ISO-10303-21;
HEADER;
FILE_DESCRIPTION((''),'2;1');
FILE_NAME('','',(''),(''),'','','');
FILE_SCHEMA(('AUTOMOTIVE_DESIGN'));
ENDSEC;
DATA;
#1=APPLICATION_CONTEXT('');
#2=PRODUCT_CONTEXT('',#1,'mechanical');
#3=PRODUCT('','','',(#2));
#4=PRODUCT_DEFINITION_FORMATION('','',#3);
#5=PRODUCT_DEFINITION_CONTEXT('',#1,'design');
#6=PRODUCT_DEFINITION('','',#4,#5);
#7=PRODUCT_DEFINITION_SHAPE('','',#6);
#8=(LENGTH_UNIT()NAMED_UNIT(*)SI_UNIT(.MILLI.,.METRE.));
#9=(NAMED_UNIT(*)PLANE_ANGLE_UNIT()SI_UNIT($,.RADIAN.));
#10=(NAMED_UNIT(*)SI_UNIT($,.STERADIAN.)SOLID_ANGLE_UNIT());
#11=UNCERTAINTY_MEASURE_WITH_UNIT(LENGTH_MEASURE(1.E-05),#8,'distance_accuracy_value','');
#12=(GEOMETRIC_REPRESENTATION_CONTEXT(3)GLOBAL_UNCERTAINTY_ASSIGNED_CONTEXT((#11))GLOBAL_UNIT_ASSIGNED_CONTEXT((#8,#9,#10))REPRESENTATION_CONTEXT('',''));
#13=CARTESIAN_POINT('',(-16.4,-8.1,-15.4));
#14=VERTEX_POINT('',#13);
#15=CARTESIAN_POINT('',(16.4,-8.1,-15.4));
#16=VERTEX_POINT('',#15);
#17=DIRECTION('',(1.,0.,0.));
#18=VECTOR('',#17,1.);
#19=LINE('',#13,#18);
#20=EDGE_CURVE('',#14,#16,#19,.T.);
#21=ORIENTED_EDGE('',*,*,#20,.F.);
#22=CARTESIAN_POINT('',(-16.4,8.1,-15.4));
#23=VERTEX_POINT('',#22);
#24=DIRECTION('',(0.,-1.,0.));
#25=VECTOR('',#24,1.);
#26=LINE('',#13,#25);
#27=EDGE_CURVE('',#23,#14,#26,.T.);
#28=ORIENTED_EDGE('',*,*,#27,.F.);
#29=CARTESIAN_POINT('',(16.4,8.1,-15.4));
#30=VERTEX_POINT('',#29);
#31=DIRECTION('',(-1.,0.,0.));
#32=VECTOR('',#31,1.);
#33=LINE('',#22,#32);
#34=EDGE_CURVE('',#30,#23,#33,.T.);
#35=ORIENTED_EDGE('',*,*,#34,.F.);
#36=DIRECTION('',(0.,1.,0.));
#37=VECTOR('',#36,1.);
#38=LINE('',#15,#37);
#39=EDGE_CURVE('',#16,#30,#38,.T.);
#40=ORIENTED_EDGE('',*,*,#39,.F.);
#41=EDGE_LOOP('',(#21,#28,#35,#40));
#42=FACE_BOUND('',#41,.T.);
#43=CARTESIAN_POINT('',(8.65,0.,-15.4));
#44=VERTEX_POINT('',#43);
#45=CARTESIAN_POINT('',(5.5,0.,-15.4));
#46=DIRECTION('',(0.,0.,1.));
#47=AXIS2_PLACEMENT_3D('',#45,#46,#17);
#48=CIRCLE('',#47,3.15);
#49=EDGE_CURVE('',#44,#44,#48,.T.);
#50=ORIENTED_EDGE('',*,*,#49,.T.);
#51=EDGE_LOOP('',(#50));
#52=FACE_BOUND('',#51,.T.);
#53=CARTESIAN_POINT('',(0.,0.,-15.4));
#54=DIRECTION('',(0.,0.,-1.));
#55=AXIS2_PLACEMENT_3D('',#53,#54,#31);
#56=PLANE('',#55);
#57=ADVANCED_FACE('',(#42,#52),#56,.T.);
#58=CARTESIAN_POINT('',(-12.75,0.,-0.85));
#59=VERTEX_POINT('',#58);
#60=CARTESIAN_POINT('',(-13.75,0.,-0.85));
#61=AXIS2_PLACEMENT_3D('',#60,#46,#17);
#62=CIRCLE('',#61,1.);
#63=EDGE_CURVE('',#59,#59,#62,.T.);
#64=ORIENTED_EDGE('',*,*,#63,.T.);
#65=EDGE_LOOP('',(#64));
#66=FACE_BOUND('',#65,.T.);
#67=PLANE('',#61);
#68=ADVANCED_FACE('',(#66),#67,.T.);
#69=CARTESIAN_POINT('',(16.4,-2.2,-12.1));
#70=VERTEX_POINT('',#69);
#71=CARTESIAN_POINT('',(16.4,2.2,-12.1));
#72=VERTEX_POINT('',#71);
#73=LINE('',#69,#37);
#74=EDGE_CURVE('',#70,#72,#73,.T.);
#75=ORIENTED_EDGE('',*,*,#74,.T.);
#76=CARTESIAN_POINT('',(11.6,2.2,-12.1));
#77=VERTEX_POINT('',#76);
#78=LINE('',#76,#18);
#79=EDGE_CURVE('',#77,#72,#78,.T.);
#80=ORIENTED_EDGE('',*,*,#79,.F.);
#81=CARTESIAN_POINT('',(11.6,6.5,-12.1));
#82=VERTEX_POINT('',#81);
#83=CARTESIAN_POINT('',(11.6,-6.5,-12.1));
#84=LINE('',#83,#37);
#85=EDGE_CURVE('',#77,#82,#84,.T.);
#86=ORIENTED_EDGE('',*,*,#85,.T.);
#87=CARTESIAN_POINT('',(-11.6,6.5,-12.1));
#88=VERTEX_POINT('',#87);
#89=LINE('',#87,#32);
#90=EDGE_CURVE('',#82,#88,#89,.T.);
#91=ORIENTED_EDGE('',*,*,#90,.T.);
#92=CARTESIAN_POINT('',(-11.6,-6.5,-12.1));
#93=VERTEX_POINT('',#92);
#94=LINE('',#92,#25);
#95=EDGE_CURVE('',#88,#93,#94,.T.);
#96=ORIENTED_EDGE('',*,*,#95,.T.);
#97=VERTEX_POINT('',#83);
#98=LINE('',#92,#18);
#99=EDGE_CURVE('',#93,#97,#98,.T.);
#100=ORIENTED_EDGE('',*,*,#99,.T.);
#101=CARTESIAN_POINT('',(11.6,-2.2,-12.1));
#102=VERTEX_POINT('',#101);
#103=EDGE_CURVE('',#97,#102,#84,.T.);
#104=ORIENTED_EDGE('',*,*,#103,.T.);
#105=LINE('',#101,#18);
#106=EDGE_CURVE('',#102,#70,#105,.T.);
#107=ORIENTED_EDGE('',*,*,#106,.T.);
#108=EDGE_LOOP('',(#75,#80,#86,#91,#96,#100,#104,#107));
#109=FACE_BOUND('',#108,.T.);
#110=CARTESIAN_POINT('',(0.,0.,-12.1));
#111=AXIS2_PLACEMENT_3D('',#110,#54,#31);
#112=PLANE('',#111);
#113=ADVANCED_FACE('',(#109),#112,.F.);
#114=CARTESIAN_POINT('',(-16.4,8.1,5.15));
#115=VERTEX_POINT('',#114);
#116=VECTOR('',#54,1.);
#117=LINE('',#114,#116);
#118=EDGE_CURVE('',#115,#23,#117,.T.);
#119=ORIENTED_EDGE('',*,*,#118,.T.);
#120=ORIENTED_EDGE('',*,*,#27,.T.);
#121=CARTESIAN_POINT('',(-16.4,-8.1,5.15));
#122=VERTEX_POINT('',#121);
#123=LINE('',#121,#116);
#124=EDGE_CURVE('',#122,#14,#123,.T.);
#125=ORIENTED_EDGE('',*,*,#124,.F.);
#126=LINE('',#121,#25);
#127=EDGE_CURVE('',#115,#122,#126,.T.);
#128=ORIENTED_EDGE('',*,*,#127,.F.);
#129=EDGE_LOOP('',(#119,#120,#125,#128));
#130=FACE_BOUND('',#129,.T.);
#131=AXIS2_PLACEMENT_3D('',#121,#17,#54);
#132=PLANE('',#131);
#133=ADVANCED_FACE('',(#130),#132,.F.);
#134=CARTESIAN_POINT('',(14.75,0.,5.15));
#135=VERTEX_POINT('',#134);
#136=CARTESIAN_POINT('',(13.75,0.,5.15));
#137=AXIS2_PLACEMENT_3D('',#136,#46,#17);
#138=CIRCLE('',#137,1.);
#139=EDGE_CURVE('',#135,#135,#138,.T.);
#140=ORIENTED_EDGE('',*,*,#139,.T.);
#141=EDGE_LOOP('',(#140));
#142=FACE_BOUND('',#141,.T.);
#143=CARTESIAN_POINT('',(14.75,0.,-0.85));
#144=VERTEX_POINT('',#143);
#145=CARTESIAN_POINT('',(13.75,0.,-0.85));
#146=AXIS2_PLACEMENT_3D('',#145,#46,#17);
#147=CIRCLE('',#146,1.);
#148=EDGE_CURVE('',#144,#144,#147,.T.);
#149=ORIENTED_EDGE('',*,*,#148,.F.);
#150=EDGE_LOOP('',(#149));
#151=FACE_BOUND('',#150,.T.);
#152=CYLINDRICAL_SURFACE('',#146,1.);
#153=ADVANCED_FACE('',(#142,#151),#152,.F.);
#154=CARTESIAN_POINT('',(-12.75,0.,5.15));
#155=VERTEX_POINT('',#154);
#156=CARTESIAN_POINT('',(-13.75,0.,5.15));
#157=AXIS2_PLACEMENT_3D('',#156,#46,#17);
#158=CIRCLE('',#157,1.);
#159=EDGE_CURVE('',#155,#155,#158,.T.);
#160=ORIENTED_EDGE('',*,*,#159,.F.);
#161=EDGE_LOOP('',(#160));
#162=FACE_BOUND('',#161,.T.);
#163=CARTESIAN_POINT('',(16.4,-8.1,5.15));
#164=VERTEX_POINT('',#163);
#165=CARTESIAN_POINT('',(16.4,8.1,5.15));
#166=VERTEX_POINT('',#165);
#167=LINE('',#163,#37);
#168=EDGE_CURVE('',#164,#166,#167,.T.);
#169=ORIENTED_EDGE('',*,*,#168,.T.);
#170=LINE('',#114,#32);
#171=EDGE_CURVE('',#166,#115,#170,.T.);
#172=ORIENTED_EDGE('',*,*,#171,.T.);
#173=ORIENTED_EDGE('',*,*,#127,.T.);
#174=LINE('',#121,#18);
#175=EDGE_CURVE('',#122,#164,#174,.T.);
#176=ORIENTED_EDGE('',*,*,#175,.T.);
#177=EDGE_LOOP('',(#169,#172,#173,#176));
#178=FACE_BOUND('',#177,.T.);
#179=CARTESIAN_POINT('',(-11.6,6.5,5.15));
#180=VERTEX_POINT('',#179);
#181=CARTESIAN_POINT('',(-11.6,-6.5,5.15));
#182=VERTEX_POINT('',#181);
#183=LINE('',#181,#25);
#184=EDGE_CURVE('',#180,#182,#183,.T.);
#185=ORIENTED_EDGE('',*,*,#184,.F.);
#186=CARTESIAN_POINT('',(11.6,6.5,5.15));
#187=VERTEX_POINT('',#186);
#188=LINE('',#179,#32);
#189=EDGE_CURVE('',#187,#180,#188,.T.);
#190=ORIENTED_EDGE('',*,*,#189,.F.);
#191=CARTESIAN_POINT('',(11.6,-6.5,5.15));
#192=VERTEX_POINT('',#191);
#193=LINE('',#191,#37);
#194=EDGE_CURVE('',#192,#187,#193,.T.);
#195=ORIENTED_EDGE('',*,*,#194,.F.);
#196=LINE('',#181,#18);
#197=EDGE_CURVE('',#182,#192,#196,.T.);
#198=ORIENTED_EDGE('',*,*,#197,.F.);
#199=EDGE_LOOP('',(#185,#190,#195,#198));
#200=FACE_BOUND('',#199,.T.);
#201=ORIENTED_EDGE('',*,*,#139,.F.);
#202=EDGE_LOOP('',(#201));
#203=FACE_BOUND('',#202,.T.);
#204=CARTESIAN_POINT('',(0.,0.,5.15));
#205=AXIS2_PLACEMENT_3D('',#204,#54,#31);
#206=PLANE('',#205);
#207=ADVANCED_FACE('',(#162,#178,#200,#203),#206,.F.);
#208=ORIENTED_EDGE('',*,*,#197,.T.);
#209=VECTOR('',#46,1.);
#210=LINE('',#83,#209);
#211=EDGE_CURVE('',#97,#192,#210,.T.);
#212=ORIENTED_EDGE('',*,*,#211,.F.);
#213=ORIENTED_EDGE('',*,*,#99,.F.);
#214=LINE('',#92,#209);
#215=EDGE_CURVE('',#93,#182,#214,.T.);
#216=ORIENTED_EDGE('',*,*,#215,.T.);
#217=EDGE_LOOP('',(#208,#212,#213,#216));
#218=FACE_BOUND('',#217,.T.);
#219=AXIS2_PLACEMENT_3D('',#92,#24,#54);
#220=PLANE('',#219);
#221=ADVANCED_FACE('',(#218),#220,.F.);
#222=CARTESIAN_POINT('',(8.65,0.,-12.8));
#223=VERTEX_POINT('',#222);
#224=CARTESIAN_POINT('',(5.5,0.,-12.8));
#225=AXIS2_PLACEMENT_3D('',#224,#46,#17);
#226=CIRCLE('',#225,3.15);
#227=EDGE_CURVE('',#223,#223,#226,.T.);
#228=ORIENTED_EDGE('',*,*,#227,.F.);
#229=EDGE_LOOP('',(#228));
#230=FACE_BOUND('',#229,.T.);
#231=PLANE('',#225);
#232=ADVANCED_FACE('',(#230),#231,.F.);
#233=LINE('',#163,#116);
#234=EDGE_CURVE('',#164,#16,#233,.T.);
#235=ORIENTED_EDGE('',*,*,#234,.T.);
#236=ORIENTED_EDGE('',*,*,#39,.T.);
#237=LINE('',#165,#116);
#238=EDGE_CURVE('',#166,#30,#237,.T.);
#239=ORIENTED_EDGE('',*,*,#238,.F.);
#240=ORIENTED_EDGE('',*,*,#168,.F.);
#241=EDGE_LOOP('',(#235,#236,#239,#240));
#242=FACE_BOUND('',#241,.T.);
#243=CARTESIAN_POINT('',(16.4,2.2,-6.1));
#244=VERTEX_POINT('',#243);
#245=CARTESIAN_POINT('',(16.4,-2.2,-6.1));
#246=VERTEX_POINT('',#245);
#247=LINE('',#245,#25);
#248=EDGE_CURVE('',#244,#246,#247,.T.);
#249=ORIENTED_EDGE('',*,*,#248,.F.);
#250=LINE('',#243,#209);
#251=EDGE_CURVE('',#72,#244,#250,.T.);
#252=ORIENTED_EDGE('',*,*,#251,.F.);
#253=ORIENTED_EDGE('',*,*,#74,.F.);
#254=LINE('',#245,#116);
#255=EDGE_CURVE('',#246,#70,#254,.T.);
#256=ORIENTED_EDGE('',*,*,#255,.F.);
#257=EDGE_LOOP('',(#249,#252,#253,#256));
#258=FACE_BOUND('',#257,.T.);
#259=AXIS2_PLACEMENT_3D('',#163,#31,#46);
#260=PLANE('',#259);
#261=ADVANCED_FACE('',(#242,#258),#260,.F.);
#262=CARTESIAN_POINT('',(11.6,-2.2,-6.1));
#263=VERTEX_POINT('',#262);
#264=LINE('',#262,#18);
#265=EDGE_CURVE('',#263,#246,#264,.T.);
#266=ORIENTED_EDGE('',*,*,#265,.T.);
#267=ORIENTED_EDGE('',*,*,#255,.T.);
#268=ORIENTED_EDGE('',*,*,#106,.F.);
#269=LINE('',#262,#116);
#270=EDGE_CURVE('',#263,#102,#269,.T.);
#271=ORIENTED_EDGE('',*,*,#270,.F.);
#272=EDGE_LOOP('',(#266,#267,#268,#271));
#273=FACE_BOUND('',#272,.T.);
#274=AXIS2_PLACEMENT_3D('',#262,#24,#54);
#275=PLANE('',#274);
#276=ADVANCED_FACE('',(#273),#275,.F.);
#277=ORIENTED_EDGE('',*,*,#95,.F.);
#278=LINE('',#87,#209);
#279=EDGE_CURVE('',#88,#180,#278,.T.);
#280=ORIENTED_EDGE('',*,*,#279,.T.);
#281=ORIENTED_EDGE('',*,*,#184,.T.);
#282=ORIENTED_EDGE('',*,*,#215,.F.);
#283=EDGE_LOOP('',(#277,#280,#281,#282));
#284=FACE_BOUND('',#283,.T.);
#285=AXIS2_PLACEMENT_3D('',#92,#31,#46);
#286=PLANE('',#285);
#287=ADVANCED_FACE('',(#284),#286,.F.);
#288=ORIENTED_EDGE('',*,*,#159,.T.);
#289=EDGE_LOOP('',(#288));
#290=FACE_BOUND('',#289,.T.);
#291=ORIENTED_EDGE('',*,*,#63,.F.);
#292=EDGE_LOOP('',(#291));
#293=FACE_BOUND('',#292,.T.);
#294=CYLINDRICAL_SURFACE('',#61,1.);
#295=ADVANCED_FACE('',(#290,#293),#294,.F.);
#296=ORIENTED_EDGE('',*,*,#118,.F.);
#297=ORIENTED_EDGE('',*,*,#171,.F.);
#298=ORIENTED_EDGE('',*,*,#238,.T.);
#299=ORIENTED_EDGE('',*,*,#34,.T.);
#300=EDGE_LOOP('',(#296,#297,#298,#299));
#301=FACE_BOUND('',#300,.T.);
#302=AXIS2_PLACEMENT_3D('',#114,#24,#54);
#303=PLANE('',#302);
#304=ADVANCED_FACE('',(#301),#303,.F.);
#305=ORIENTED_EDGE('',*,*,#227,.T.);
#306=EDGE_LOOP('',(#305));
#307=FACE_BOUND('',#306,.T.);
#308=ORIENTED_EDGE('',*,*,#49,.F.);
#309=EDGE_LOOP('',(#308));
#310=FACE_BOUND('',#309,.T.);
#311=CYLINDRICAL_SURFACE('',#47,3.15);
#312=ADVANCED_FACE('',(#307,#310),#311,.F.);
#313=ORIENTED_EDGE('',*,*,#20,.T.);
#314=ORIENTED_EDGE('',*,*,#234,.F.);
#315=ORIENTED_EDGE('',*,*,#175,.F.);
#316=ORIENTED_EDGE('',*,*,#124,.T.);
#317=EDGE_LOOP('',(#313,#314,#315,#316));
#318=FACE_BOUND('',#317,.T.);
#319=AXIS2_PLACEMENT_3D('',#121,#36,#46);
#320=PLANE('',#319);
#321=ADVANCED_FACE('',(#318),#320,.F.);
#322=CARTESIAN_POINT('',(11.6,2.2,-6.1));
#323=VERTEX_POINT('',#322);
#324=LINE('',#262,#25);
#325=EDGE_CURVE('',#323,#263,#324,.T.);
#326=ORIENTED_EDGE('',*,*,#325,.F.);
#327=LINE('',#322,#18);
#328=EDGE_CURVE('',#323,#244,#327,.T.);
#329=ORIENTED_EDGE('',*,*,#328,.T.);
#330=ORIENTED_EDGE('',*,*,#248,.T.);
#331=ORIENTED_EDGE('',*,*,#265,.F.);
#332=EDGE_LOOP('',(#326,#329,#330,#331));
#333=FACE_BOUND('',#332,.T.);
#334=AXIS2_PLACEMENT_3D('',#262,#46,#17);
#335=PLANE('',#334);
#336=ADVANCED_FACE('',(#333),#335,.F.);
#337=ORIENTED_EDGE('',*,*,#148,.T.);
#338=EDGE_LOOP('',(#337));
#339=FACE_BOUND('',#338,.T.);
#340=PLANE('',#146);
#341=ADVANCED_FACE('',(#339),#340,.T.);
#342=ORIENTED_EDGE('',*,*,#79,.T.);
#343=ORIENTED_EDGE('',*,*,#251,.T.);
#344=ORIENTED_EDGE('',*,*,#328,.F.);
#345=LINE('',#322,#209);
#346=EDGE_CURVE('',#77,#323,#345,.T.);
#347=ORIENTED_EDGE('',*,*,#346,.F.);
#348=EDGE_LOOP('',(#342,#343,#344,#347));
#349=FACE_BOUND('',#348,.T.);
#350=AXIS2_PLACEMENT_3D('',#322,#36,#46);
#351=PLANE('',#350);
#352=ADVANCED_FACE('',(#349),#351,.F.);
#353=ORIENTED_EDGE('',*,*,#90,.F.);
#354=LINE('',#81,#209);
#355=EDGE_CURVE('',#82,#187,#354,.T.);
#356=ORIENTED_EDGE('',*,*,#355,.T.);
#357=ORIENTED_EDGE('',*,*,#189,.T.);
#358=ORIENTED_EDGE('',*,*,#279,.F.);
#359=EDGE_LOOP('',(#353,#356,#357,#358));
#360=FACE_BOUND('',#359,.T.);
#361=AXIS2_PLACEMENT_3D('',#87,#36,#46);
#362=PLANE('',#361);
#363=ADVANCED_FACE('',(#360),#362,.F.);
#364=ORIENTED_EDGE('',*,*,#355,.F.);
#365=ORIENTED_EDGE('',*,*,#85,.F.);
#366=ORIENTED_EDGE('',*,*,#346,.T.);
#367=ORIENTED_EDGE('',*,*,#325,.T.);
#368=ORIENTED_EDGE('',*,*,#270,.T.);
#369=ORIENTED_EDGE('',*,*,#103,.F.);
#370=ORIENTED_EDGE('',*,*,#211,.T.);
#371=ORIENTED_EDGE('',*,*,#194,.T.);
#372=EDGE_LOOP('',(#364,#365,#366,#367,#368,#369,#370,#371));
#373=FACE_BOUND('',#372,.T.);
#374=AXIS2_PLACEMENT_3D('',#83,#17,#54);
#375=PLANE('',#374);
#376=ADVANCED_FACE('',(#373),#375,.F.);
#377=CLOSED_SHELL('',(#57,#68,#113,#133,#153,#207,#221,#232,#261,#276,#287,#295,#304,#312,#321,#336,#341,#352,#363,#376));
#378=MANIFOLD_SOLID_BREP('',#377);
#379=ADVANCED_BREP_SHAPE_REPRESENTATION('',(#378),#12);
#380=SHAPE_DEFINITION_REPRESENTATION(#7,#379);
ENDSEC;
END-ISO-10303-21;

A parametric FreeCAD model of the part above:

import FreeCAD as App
import Part
import Sketcher

V = App.Vector
Q = App.Units.Quantity


def add_polygon(sketch, points):
    """Adds a closed chain of lines whose ends are joined by coincident constraints."""
    first, n = sketch.GeometryCount, len(points)
    for a, b in zip(points, points[1:] + points[:1]):
        sketch.addGeometry(Part.LineSegment(App.Vector(*a, 0), App.Vector(*b, 0)), False)
    for i in range(n):
        sketch.addConstraint(Sketcher.Constraint("Coincident", first + i, 2, first + (i + 1) % n, 1))

doc = App.newDocument("Part")
body = doc.addObject("PartDesign::Body", "Body")

sketch1 = body.newObject("Sketcher::SketchObject", "Sketch")
sketch1.AttachmentSupport = (doc.getObject("XY_Plane"), [""])
sketch1.MapMode = "FlatFace"
sketch1.AttachmentOffset = App.Placement(V(0, 0, -5.125), App.Rotation())
add_polygon(sketch1, [(-16, 8), (-16, -8), (16, -8), (16, 8)])
sketch1.addConstraint([
    Sketcher.Constraint("Vertical", 0),
    Sketcher.Constraint("Horizontal", 1),
    Sketcher.Constraint("Vertical", 2),
    Sketcher.Constraint("Horizontal", 3),
    Sketcher.Constraint("Symmetric", 0, 2, 2, 2, -1, 1),
    Sketcher.Constraint("DistanceX", 1, 1, 1, 2, Q("32.8 mm")),
    Sketcher.Constraint("DistanceY", 0, 2, 0, 1, Q("16.2 mm")),
])
pad1 = body.newObject("PartDesign::Pad", "Pad")
pad1.Profile = sketch1
pad1.Length = 20.55
pad1.Midplane = True

sketch2 = body.newObject("Sketcher::SketchObject", "Sketch001")
sketch2.AttachmentSupport = (doc.getObject("XY_Plane"), [""])
sketch2.MapMode = "FlatFace"
sketch2.AttachmentOffset = App.Placement(V(0, 0, -3.475), App.Rotation())
add_polygon(sketch2, [(-12, 6), (-12, -6), (12, -6), (12, 6)])
sketch2.addConstraint([
    Sketcher.Constraint("Vertical", 0),
    Sketcher.Constraint("Horizontal", 1),
    Sketcher.Constraint("Vertical", 2),
    Sketcher.Constraint("Horizontal", 3),
    Sketcher.Constraint("Symmetric", 0, 2, 2, 2, -1, 1),
    Sketcher.Constraint("DistanceY", 0, 2, 0, 1, Q("13 mm")),
    Sketcher.Constraint("DistanceX", 1, 1, 1, 2, Q("23.2 mm")),
])
pocket1 = body.newObject("PartDesign::Pocket", "Pocket")
pocket1.Profile = sketch2
pocket1.Length = 17.25
pocket1.Midplane = True

sketch3 = body.newObject("Sketcher::SketchObject", "Sketch002")
sketch3.AttachmentSupport = (doc.getObject("XY_Plane"), [""])
sketch3.MapMode = "FlatFace"
sketch3.AttachmentOffset = App.Placement(V(0, 0, 2.15), App.Rotation())
sketch3.addGeometry(Part.Circle(V(-13.8, 0, 0), V(0, 0, 1), 1), False)
sketch3.addConstraint([
    Sketcher.Constraint("PointOnObject", 0, 3, -1),
    Sketcher.Constraint("Diameter", 0, Q("2 mm")),
    Sketcher.Constraint("DistanceX", 0, 3, -1, 1, Q("13.75 mm")),
])
pocket2 = body.newObject("PartDesign::Pocket", "Pocket001")
pocket2.Profile = sketch3
pocket2.Length = 6
pocket2.Midplane = True

sketch4 = body.newObject("Sketcher::SketchObject", "Sketch003")
sketch4.AttachmentSupport = (doc.getObject("XY_Plane"), [""])
sketch4.MapMode = "FlatFace"
sketch4.AttachmentOffset = App.Placement(V(0, 0, 2.15), App.Rotation())
sketch4.addGeometry(Part.Circle(V(13.8, 0, 0), V(0, 0, 1), 1), False)
sketch4.addConstraint([
    Sketcher.Constraint("PointOnObject", 0, 3, -1),
    Sketcher.Constraint("Diameter", 0, Q("2 mm")),
    Sketcher.Constraint("DistanceX", -1, 1, 0, 3, Q("13.75 mm")),
])
pocket3 = body.newObject("PartDesign::Pocket", "Pocket002")
pocket3.Profile = sketch4
pocket3.Length = 6
pocket3.Midplane = True

sketch5 = body.newObject("Sketcher::SketchObject", "Sketch004")
sketch5.AttachmentSupport = (doc.getObject("XY_Plane"), [""])
sketch5.MapMode = "FlatFace"
sketch5.AttachmentOffset = App.Placement(V(0, 0, -14.1), App.Rotation())
sketch5.addGeometry(Part.Circle(V(5.5, 0, 0), V(0, 0, 1), 3.1), False)
sketch5.addConstraint([
    Sketcher.Constraint("PointOnObject", 0, 3, -1),
    Sketcher.Constraint("Diameter", 0, Q("6.3 mm")),
    Sketcher.Constraint("DistanceX", -1, 1, 0, 3, Q("5.5 mm")),
])
pocket4 = body.newObject("PartDesign::Pocket", "Pocket003")
pocket4.Profile = sketch5
pocket4.Length = 2.6
pocket4.Midplane = True

sketch6 = body.newObject("Sketcher::SketchObject", "Sketch005")
sketch6.AttachmentSupport = (doc.getObject("YZ_Plane"), [""])
sketch6.MapMode = "FlatFace"
sketch6.AttachmentOffset = App.Placement(V(0, 0, 14), App.Rotation())
add_polygon(sketch6, [(2.2, -6.1), (-2.2, -6.1), (-2.2, -12.1), (2.2, -12.1)])
sketch6.addConstraint([
    Sketcher.Constraint("Horizontal", 0),
    Sketcher.Constraint("Vertical", 1),
    Sketcher.Constraint("Horizontal", 2),
    Sketcher.Constraint("Vertical", 3),
    Sketcher.Constraint("DistanceY", 1, 2, 1, 1, Q("6 mm")),
    Sketcher.Constraint("DistanceX", 0, 2, 0, 1, Q("4.4 mm")),
    Sketcher.Constraint("DistanceX", 0, 2, -1, 1, Q("2.2 mm")),
    Sketcher.Constraint("DistanceY", 0, 2, -1, 1, Q("6.1 mm")),
])
pocket5 = body.newObject("PartDesign::Pocket", "Pocket004")
pocket5.Profile = sketch6
pocket5.Length = 4.8
pocket5.Midplane = True

doc.recompute()
